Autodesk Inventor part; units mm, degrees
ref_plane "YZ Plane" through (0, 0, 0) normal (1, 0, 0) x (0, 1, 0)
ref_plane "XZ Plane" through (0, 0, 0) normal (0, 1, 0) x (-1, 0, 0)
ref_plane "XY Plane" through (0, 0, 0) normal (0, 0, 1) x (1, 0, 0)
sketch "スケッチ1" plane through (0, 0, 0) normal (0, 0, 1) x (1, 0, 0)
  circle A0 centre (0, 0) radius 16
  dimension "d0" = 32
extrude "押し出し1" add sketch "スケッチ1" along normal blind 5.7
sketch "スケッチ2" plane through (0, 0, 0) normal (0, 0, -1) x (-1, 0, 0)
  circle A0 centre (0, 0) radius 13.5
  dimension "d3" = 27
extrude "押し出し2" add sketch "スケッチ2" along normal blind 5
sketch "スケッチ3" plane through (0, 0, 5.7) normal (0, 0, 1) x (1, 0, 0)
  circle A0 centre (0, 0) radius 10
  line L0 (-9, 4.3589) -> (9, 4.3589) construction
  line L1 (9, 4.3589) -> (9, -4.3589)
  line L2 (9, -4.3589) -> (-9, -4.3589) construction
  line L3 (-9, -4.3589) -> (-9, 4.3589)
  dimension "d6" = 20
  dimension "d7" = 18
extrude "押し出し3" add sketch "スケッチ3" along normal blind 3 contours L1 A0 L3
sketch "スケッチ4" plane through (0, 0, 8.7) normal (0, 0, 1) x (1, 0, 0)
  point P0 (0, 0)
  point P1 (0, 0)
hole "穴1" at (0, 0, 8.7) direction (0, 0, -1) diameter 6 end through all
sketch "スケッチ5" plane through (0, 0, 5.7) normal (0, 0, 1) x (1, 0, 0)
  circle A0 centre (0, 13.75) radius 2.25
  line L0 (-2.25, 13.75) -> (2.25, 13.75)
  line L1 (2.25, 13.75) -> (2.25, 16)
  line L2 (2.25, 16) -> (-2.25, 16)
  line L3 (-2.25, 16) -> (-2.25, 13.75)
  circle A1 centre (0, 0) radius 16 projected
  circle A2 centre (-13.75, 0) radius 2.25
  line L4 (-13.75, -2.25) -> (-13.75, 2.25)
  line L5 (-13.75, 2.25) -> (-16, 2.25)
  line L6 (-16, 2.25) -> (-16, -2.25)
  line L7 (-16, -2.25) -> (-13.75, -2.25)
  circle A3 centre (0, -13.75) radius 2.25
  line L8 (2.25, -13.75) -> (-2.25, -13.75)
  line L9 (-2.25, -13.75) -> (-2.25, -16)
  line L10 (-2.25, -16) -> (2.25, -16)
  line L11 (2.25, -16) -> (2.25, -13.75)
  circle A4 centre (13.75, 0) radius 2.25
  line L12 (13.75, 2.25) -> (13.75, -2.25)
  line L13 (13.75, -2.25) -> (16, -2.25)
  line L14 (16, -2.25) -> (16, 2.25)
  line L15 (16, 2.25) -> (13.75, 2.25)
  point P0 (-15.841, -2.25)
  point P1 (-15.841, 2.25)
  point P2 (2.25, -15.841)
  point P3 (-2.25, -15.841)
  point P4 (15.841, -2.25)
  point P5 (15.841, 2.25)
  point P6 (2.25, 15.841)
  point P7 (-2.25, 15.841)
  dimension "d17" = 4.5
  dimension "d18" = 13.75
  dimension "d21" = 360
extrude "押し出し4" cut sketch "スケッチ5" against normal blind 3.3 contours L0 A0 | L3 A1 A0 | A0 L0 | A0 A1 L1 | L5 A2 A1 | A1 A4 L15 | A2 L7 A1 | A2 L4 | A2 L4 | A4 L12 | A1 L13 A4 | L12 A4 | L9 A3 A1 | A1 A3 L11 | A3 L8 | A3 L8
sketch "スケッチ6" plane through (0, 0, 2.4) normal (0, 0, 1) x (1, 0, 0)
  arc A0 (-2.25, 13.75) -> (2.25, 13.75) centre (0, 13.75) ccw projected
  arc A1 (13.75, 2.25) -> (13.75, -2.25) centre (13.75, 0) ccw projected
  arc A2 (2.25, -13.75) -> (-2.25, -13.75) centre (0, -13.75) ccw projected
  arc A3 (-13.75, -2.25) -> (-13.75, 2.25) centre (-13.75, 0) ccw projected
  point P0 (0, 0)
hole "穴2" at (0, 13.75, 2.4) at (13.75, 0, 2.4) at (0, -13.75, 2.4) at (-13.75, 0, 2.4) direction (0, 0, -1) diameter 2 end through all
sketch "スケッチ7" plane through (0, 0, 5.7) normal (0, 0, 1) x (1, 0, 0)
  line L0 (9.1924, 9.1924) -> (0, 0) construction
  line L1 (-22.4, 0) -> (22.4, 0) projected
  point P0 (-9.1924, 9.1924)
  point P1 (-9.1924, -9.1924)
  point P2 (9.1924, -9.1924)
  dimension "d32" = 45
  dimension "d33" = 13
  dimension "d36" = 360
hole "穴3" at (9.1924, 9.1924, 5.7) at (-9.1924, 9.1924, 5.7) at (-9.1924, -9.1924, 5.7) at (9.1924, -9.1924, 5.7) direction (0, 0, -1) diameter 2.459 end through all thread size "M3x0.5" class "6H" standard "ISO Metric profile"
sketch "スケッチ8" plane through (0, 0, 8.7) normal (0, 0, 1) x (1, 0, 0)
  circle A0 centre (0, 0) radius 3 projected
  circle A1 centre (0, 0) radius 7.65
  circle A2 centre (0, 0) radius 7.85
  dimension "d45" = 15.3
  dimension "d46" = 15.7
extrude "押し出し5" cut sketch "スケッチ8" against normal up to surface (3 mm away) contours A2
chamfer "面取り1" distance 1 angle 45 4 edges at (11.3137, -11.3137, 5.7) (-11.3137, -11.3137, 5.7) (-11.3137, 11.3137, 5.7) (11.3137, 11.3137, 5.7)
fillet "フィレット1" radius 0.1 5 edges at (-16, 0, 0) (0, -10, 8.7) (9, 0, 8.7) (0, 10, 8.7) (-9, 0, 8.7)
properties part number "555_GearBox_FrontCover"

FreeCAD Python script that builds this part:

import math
import FreeCAD as App
import Part
import Sketcher


def edges_at(feature, points):
    """Names of the edges that pass closest to the given points."""
    edges = feature.Shape.Edges
    near = lambda p: min(range(len(edges)), key=lambda i: edges[i].distToShape(Part.Vertex(*p))[0])
    return sorted({f"Edge{near(p) + 1}" for p in points})

doc = App.newDocument("Part")
params = doc.addObject("Spreadsheet::Sheet", "Params")
for row, (alias, value) in enumerate([
    ("sketch1_diameter", "32 mm"),
    ("pad1_length", "5.7 mm"),
    ("sketch2_diameter", "27 mm"),
    ("pad2_length", "5 mm"),
    ("sketch3_radius", "10 mm"),
    ("pad3_length", "3 mm"),
    ("sketch4_diameter", "6 mm"),
    ("hole_diameter", "6 mm"),
    ("sketch5_radius", "2.25 mm"),
    ("sketch5_radius2", "16 mm"),
    ("pocket1_length", "3.3 mm"),
    ("sketch6_diameter", "2 mm"),
    ("hole2_diameter", "2 mm"),
    ("hole3_diameter", "2.459 mm"),
    ("sketch8_diameter", "15.7 mm"),
    ("sketch8_diameter2", "15.3 mm"),
    ("pocket2_length", "3 mm"),
    ("chamfer_size", "1 mm"),
    ("fillet_radius", "0.1 mm"),
], start=1):
    params.set(f"A{row}", alias)
    params.set(f"B{row}", "=" + value)
    params.setAlias(f"B{row}", alias)

body = doc.addObject("PartDesign::Body", "Body")

# Sketch on XY plane
sketch1 = doc.addObject("Sketcher::SketchObject", "Sketch")
body.addObject(sketch1)
sketch1.AttachmentSupport = (doc.XY_Plane, [""])
sketch1.MapMode = "FlatFace"
sketch1.addGeometry(Part.Circle(App.Vector(0, 0, 0), App.Vector(0, 0, 1), 16), False)
sketch1.addConstraint(Sketcher.Constraint("Coincident", 0, 3, -1, 1))
sketch1.addConstraint(Sketcher.Constraint("Diameter", 0, 32.0))
sketch1.setExpression("Constraints[1]", "Params.sketch1_diameter")
pad1 = doc.addObject("PartDesign::Pad", "Pad")
body.addObject(pad1)
pad1.Profile = sketch1
pad1.setExpression("Length", "Params.pad1_length")

# Sketch on XY plane
sketch2 = doc.addObject("Sketcher::SketchObject", "Sketch001")
body.addObject(sketch2)
sketch2.AttachmentSupport = (doc.XY_Plane, [""])
sketch2.MapMode = "FlatFace"
sketch2.addGeometry(Part.Circle(App.Vector(0, 0, 0), App.Vector(0, 0, 1), 14), False)
sketch2.addConstraint(Sketcher.Constraint("Coincident", 0, 3, -1, 1))
sketch2.addConstraint(Sketcher.Constraint("Diameter", 0, 27.0))
sketch2.setExpression("Constraints[1]", "Params.sketch2_diameter")
pad2 = doc.addObject("PartDesign::Pad", "Pad001")
body.addObject(pad2)
pad2.Profile = sketch2
pad2.setExpression("Length", "Params.pad2_length")
pad2.Reversed = True

# Sketch on XY plane
sketch3 = doc.addObject("Sketcher::SketchObject", "Sketch002")
body.addObject(sketch3)
sketch3.AttachmentSupport = (doc.XY_Plane, [""])
sketch3.MapMode = "FlatFace"
sketch3.AttachmentOffset = App.Placement(App.Vector(0, 0, 5.7), App.Rotation())
sketch3.addGeometry(Part.LineSegment(App.Vector(9, -4, 0), App.Vector(9, 4, 0)), False)
sketch3.addGeometry(Part.ArcOfCircle(Part.Circle(App.Vector(0, 0, 0), App.Vector(0, 0, 1), 10), math.radians(26), math.radians(154)), False)
sketch3.addGeometry(Part.LineSegment(App.Vector(-9, 4, 0), App.Vector(-9, -4, 0)), False)
sketch3.addGeometry(Part.ArcOfCircle(Part.Circle(App.Vector(0, 0, 0), App.Vector(0, 0, 1), 10), math.radians(-154), math.radians(-26)), False)
sketch3.addConstraint(Sketcher.Constraint("Coincident", 0, 2, 1, 1))
sketch3.addConstraint(Sketcher.Constraint("Coincident", 1, 2, 2, 1))
sketch3.addConstraint(Sketcher.Constraint("Coincident", 2, 2, 3, 1))
sketch3.addConstraint(Sketcher.Constraint("Coincident", 3, 2, 0, 1))
sketch3.addConstraint(Sketcher.Constraint("Vertical", 0))
sketch3.addConstraint(Sketcher.Constraint("Vertical", 2))
sketch3.addConstraint(Sketcher.Constraint("Coincident", 1, 3, -1, 1))
sketch3.addConstraint(Sketcher.Constraint("Coincident", 3, 3, -1, 1))
sketch3.addConstraint(Sketcher.Constraint("Equal", 1, 3))
sketch3.addConstraint(Sketcher.Constraint("Horizontal", 0, 2, 1, 2))
sketch3.addConstraint(Sketcher.Constraint("Radius", 1, 10.0))
sketch3.addConstraint(Sketcher.Constraint("DistanceX", 1, 2, 0, 2, 18.0))
sketch3.setExpression("Constraints[10]", "Params.sketch3_radius")
pad3 = doc.addObject("PartDesign::Pad", "Pad002")
body.addObject(pad3)
pad3.Profile = sketch3
pad3.setExpression("Length", "Params.pad3_length")

# Sketch on XY plane
sketch4 = doc.addObject("Sketcher::SketchObject", "Sketch003")
body.addObject(sketch4)
sketch4.AttachmentSupport = (doc.XY_Plane, [""])
sketch4.MapMode = "FlatFace"
sketch4.AttachmentOffset = App.Placement(App.Vector(0, 0, 8.7), App.Rotation())
sketch4.addGeometry(Part.Circle(App.Vector(0, 0, 0), App.Vector(0, 0, 1), 3), False)
sketch4.addConstraint(Sketcher.Constraint("Coincident", 0, 3, -1, 1))
sketch4.addConstraint(Sketcher.Constraint("Diameter", 0, 6.0))
sketch4.setExpression("Constraints[1]", "Params.sketch4_diameter")
doc.recompute()
hole = doc.addObject("PartDesign::Hole", "Hole")
body.addObject(hole)
hole.Profile = sketch4
hole.ThreadType = "None"
hole.setExpression("Diameter", "Params.hole_diameter")
hole.DepthType = "ThroughAll"

# Sketch on XY plane
sketch5 = doc.addObject("Sketcher::SketchObject", "Sketch004")
body.addObject(sketch5)
sketch5.AttachmentSupport = (doc.XY_Plane, [""])
sketch5.MapMode = "FlatFace"
sketch5.AttachmentOffset = App.Placement(App.Vector(0, 0, 5.7), App.Rotation())
sketch5.addGeometry(Part.ArcOfCircle(Part.Circle(App.Vector(0, 13.8, 0), App.Vector(0, 0, 1), 2.2), math.radians(180), math.radians(360)), False)
sketch5.addGeometry(Part.LineSegment(App.Vector(2.2, 13.8, 0), App.Vector(2.2, 15.8, 0)), False)
sketch5.addGeometry(Part.ArcOfCircle(Part.Circle(App.Vector(0, 0, 0), App.Vector(0, 0, 1), 16), math.radians(81.92), math.radians(98.08)), False)
sketch5.addGeometry(Part.LineSegment(App.Vector(-2.2, 15.8, 0), App.Vector(-2.2, 13.8, 0)), False)
sketch5.addGeometry(Part.LineSegment(App.Vector(-13.8, 2.2, 0), App.Vector(-15.8, 2.2, 0)), False)
sketch5.addGeometry(Part.ArcOfCircle(Part.Circle(App.Vector(0, 0, 0), App.Vector(0, 0, 1), 16), math.radians(171.92), math.radians(188.08)), False)
sketch5.addGeometry(Part.LineSegment(App.Vector(-15.8, -2.2, 0), App.Vector(-13.8, -2.2, 0)), False)
sketch5.addGeometry(Part.ArcOfCircle(Part.Circle(App.Vector(-13.8, 0, 0), App.Vector(0, 0, 1), 2.2), math.radians(-90), math.radians(90)), False)
sketch5.addGeometry(Part.LineSegment(App.Vector(15.8, 2.2, 0), App.Vector(13.8, 2.2, 0)), False)
sketch5.addGeometry(Part.ArcOfCircle(Part.Circle(App.Vector(13.8, 0, 0), App.Vector(0, 0, 1), 2.2), math.radians(90), math.radians(270)), False)
sketch5.addGeometry(Part.LineSegment(App.Vector(13.8, -2.2, 0), App.Vector(15.8, -2.2, 0)), False)
sketch5.addGeometry(Part.ArcOfCircle(Part.Circle(App.Vector(0, 0, 0), App.Vector(0, 0, 1), 16), math.radians(-8.08), math.radians(8.08)), False)
sketch5.addGeometry(Part.LineSegment(App.Vector(-2.2, -13.8, 0), App.Vector(-2.2, -15.8, 0)), False)
sketch5.addGeometry(Part.ArcOfCircle(Part.Circle(App.Vector(0, 0, 0), App.Vector(0, 0, 1), 16), math.radians(-98.08), math.radians(-81.92)), False)
sketch5.addGeometry(Part.LineSegment(App.Vector(2.2, -15.8, 0), App.Vector(2.2, -13.8, 0)), False)
sketch5.addGeometry(Part.ArcOfCircle(Part.Circle(App.Vector(0, -13.8, 0), App.Vector(0, 0, 1), 2.2), math.radians(0), math.radians(180)), False)
sketch5.addConstraint(Sketcher.Constraint("Tangent", 0, 2, 1, 1))
sketch5.addConstraint(Sketcher.Constraint("Coincident", 1, 2, 2, 1))
sketch5.addConstraint(Sketcher.Constraint("Coincident", 2, 2, 3, 1))
sketch5.addConstraint(Sketcher.Constraint("Tangent", 3, 2, 0, 1))
sketch5.addConstraint(Sketcher.Constraint("Coincident", 4, 2, 5, 1))
sketch5.addConstraint(Sketcher.Constraint("Coincident", 5, 2, 6, 1))
sketch5.addConstraint(Sketcher.Constraint("Tangent", 6, 2, 7, 1))
sketch5.addConstraint(Sketcher.Constraint("Tangent", 7, 2, 4, 1))
sketch5.addConstraint(Sketcher.Constraint("Tangent", 8, 2, 9, 1))
sketch5.addConstraint(Sketcher.Constraint("Tangent", 9, 2, 10, 1))
sketch5.addConstraint(Sketcher.Constraint("Coincident", 10, 2, 11, 1))
sketch5.addConstraint(Sketcher.Constraint("Coincident", 11, 2, 8, 1))
sketch5.addConstraint(Sketcher.Constraint("Coincident", 12, 2, 13, 1))
sketch5.addConstraint(Sketcher.Constraint("Coincident", 13, 2, 14, 1))
sketch5.addConstraint(Sketcher.Constraint("Tangent", 14, 2, 15, 1))
sketch5.addConstraint(Sketcher.Constraint("Tangent", 15, 2, 12, 1))
sketch5.addConstraint(Sketcher.Constraint("Vertical", 1))
sketch5.addConstraint(Sketcher.Constraint("Vertical", 3))
sketch5.addConstraint(Sketcher.Constraint("Horizontal", 4))
sketch5.addConstraint(Sketcher.Constraint("Horizontal", 6))
sketch5.addConstraint(Sketcher.Constraint("Horizontal", 8))
sketch5.addConstraint(Sketcher.Constraint("Horizontal", 10))
sketch5.addConstraint(Sketcher.Constraint("Vertical", 12))
sketch5.addConstraint(Sketcher.Constraint("Vertical", 14))
sketch5.addConstraint(Sketcher.Constraint("Coincident", 2, 3, -1, 1))
sketch5.addConstraint(Sketcher.Constraint("Coincident", 5, 3, -1, 1))
sketch5.addConstraint(Sketcher.Constraint("Coincident", 11, 3, -1, 1))
sketch5.addConstraint(Sketcher.Constraint("Coincident", 13, 3, -1, 1))
sketch5.addConstraint(Sketcher.Constraint("Equal", 2, 5))
sketch5.addConstraint(Sketcher.Constraint("Equal", 0, 7))
sketch5.addConstraint(Sketcher.Constraint("Equal", 7, 9))
sketch5.addConstraint(Sketcher.Constraint("Equal", 5, 11))
sketch5.addConstraint(Sketcher.Constraint("Equal", 11, 13))
sketch5.addConstraint(Sketcher.Constraint("Equal", 9, 15))
sketch5.addConstraint(Sketcher.Constraint("Symmetric", 7, 3, 9, 3, -1, 1))
sketch5.addConstraint(Sketcher.Constraint("Symmetric", 0, 3, 15, 3, -1, 1))
sketch5.addConstraint(Sketcher.Constraint("PointOnObject", 0, 3, -2))
sketch5.addConstraint(Sketcher.Constraint("PointOnObject", 7, 3, -1))
sketch5.addConstraint(Sketcher.Constraint("Equal", 10, 1))
sketch5.addConstraint(Sketcher.Constraint("Radius", 0, 2.25))
sketch5.addConstraint(Sketcher.Constraint("Radius", 2, 16.0))
sketch5.addConstraint(Sketcher.Constraint("DistanceY", -1, 1, 0, 3, 13.75))
sketch5.setExpression("Constraints[39]", "Params.sketch5_radius")
sketch5.setExpression("Constraints[40]", "Params.sketch5_radius2")
pocket1 = doc.addObject("PartDesign::Pocket", "Pocket")
body.addObject(pocket1)
pocket1.Profile = sketch5
pocket1.setExpression("Length", "Params.pocket1_length")

# Sketch on XY plane
sketch6 = doc.addObject("Sketcher::SketchObject", "Sketch005")
body.addObject(sketch6)
sketch6.AttachmentSupport = (doc.XY_Plane, [""])
sketch6.MapMode = "FlatFace"
sketch6.AttachmentOffset = App.Placement(App.Vector(0, 0, 2.4), App.Rotation())
sketch6.addGeometry(Part.Circle(App.Vector(0, 13.8, 0), App.Vector(0, 0, 1), 1), False)
sketch6.addGeometry(Part.Circle(App.Vector(13.8, 0, 0), App.Vector(0, 0, 1), 1), False)
sketch6.addGeometry(Part.Circle(App.Vector(0, -13.8, 0), App.Vector(0, 0, 1), 1), False)
sketch6.addGeometry(Part.Circle(App.Vector(-13.8, 0, 0), App.Vector(0, 0, 1), 1), False)
sketch6.addConstraint(Sketcher.Constraint("Equal", 0, 1))
sketch6.addConstraint(Sketcher.Constraint("Equal", 1, 2))
sketch6.addConstraint(Sketcher.Constraint("Equal", 2, 3))
sketch6.addConstraint(Sketcher.Constraint("Symmetric", 0, 3, 2, 3, -1, 1))
sketch6.addConstraint(Sketcher.Constraint("Symmetric", 1, 3, 3, 3, -1, 1))
sketch6.addConstraint(Sketcher.Constraint("PointOnObject", 0, 3, -2))
sketch6.addConstraint(Sketcher.Constraint("PointOnObject", 1, 3, -1))
sketch6.addConstraint(Sketcher.Constraint("Diameter", 0, 2.0))
sketch6.addConstraint(Sketcher.Constraint("DistanceY", 2, 3, 0, 3, 27.5))
sketch6.addConstraint(Sketcher.Constraint("DistanceX", 3, 3, 1, 3, 27.5))
sketch6.setExpression("Constraints[7]", "Params.sketch6_diameter")
doc.recompute()
hole2 = doc.addObject("PartDesign::Hole", "Hole001")
body.addObject(hole2)
hole2.Profile = sketch6
hole2.ThreadType = "None"
hole2.setExpression("Diameter", "Params.hole2_diameter")
hole2.DepthType = "ThroughAll"

# Sketch on XY plane
sketch7 = doc.addObject("Sketcher::SketchObject", "Sketch006")
body.addObject(sketch7)
sketch7.AttachmentSupport = (doc.XY_Plane, [""])
sketch7.MapMode = "FlatFace"
sketch7.AttachmentOffset = App.Placement(App.Vector(0, 0, 5.7), App.Rotation())
sketch7.addGeometry(Part.Circle(App.Vector(9.2, 9.2, 0), App.Vector(0, 0, 1), 1.2), False)
sketch7.addGeometry(Part.Circle(App.Vector(-9.2, 9.2, 0), App.Vector(0, 0, 1), 1.2), False)
sketch7.addGeometry(Part.Circle(App.Vector(-9.2, -9.2, 0), App.Vector(0, 0, 1), 1.2), False)
sketch7.addGeometry(Part.Circle(App.Vector(9.2, -9.2, 0), App.Vector(0, 0, 1), 1.2), False)
sketch7.addConstraint(Sketcher.Constraint("Equal", 0, 1))
sketch7.addConstraint(Sketcher.Constraint("Equal", 1, 2))
sketch7.addConstraint(Sketcher.Constraint("Equal", 2, 3))
sketch7.addConstraint(Sketcher.Constraint("Symmetric", 0, 3, 2, 3, -1, 1))
sketch7.addConstraint(Sketcher.Constraint("Symmetric", 1, 3, 3, 3, -1, 1))
sketch7.addConstraint(Sketcher.Constraint("Symmetric", 0, 3, 1, 3, -2))
sketch7.addConstraint(Sketcher.Constraint("Diameter", 0, 2.459))
sketch7.addConstraint(Sketcher.Constraint("DistanceX", -1, 1, 0, 3, 9.1924))
sketch7.addConstraint(Sketcher.Constraint("DistanceY", -1, 1, 0, 3, 9.1924))
doc.recompute()
hole3 = doc.addObject("PartDesign::Hole", "Hole002")
body.addObject(hole3)
hole3.Profile = sketch7
hole3.ThreadType = "None"
hole3.setExpression("Diameter", "Params.hole3_diameter")
hole3.DepthType = "ThroughAll"

# Sketch on XY plane
sketch8 = doc.addObject("Sketcher::SketchObject", "Sketch007")
body.addObject(sketch8)
sketch8.AttachmentSupport = (doc.XY_Plane, [""])
sketch8.MapMode = "FlatFace"
sketch8.AttachmentOffset = App.Placement(App.Vector(0, 0, 8.7), App.Rotation())
sketch8.addGeometry(Part.Circle(App.Vector(0, 0, 0), App.Vector(0, 0, 1), 8), False)
sketch8.addGeometry(Part.Circle(App.Vector(0, 0, 0), App.Vector(0, 0, 1), 8), False)
sketch8.addConstraint(Sketcher.Constraint("Coincident", 0, 3, -1, 1))
sketch8.addConstraint(Sketcher.Constraint("Coincident", 1, 3, -1, 1))
sketch8.addConstraint(Sketcher.Constraint("Diameter", 0, 15.7))
sketch8.addConstraint(Sketcher.Constraint("Diameter", 1, 15.3))
sketch8.setExpression("Constraints[2]", "Params.sketch8_diameter")
sketch8.setExpression("Constraints[3]", "Params.sketch8_diameter2")
pocket2 = doc.addObject("PartDesign::Pocket", "Pocket001")
body.addObject(pocket2)
pocket2.Profile = sketch8
pocket2.setExpression("Length", "Params.pocket2_length")
doc.recompute()

chamfer = doc.addObject("PartDesign::Chamfer", "Chamfer")
body.addObject(chamfer)
chamfer.Base = (pocket2, edges_at(pocket2, [
    (11.314, -11.314, 5.7),
    (-11.314, -11.314, 5.7),
    (-11.314, 11.314, 5.7),
    (11.314, 11.314, 5.7),
]))
chamfer.setExpression("Size", "Params.chamfer_size")
doc.recompute()

fillet = doc.addObject("PartDesign::Fillet", "Fillet")
body.addObject(fillet)
fillet.Base = (chamfer, edges_at(chamfer, [
    (-16, 0, 0),
    (0, -10, 8.7),
    (9, 0, 8.7),
    (0, 10, 8.7),
    (-9, 0, 8.7),
]))
fillet.setExpression("Radius", "Params.fillet_radius")

doc.recompute()
